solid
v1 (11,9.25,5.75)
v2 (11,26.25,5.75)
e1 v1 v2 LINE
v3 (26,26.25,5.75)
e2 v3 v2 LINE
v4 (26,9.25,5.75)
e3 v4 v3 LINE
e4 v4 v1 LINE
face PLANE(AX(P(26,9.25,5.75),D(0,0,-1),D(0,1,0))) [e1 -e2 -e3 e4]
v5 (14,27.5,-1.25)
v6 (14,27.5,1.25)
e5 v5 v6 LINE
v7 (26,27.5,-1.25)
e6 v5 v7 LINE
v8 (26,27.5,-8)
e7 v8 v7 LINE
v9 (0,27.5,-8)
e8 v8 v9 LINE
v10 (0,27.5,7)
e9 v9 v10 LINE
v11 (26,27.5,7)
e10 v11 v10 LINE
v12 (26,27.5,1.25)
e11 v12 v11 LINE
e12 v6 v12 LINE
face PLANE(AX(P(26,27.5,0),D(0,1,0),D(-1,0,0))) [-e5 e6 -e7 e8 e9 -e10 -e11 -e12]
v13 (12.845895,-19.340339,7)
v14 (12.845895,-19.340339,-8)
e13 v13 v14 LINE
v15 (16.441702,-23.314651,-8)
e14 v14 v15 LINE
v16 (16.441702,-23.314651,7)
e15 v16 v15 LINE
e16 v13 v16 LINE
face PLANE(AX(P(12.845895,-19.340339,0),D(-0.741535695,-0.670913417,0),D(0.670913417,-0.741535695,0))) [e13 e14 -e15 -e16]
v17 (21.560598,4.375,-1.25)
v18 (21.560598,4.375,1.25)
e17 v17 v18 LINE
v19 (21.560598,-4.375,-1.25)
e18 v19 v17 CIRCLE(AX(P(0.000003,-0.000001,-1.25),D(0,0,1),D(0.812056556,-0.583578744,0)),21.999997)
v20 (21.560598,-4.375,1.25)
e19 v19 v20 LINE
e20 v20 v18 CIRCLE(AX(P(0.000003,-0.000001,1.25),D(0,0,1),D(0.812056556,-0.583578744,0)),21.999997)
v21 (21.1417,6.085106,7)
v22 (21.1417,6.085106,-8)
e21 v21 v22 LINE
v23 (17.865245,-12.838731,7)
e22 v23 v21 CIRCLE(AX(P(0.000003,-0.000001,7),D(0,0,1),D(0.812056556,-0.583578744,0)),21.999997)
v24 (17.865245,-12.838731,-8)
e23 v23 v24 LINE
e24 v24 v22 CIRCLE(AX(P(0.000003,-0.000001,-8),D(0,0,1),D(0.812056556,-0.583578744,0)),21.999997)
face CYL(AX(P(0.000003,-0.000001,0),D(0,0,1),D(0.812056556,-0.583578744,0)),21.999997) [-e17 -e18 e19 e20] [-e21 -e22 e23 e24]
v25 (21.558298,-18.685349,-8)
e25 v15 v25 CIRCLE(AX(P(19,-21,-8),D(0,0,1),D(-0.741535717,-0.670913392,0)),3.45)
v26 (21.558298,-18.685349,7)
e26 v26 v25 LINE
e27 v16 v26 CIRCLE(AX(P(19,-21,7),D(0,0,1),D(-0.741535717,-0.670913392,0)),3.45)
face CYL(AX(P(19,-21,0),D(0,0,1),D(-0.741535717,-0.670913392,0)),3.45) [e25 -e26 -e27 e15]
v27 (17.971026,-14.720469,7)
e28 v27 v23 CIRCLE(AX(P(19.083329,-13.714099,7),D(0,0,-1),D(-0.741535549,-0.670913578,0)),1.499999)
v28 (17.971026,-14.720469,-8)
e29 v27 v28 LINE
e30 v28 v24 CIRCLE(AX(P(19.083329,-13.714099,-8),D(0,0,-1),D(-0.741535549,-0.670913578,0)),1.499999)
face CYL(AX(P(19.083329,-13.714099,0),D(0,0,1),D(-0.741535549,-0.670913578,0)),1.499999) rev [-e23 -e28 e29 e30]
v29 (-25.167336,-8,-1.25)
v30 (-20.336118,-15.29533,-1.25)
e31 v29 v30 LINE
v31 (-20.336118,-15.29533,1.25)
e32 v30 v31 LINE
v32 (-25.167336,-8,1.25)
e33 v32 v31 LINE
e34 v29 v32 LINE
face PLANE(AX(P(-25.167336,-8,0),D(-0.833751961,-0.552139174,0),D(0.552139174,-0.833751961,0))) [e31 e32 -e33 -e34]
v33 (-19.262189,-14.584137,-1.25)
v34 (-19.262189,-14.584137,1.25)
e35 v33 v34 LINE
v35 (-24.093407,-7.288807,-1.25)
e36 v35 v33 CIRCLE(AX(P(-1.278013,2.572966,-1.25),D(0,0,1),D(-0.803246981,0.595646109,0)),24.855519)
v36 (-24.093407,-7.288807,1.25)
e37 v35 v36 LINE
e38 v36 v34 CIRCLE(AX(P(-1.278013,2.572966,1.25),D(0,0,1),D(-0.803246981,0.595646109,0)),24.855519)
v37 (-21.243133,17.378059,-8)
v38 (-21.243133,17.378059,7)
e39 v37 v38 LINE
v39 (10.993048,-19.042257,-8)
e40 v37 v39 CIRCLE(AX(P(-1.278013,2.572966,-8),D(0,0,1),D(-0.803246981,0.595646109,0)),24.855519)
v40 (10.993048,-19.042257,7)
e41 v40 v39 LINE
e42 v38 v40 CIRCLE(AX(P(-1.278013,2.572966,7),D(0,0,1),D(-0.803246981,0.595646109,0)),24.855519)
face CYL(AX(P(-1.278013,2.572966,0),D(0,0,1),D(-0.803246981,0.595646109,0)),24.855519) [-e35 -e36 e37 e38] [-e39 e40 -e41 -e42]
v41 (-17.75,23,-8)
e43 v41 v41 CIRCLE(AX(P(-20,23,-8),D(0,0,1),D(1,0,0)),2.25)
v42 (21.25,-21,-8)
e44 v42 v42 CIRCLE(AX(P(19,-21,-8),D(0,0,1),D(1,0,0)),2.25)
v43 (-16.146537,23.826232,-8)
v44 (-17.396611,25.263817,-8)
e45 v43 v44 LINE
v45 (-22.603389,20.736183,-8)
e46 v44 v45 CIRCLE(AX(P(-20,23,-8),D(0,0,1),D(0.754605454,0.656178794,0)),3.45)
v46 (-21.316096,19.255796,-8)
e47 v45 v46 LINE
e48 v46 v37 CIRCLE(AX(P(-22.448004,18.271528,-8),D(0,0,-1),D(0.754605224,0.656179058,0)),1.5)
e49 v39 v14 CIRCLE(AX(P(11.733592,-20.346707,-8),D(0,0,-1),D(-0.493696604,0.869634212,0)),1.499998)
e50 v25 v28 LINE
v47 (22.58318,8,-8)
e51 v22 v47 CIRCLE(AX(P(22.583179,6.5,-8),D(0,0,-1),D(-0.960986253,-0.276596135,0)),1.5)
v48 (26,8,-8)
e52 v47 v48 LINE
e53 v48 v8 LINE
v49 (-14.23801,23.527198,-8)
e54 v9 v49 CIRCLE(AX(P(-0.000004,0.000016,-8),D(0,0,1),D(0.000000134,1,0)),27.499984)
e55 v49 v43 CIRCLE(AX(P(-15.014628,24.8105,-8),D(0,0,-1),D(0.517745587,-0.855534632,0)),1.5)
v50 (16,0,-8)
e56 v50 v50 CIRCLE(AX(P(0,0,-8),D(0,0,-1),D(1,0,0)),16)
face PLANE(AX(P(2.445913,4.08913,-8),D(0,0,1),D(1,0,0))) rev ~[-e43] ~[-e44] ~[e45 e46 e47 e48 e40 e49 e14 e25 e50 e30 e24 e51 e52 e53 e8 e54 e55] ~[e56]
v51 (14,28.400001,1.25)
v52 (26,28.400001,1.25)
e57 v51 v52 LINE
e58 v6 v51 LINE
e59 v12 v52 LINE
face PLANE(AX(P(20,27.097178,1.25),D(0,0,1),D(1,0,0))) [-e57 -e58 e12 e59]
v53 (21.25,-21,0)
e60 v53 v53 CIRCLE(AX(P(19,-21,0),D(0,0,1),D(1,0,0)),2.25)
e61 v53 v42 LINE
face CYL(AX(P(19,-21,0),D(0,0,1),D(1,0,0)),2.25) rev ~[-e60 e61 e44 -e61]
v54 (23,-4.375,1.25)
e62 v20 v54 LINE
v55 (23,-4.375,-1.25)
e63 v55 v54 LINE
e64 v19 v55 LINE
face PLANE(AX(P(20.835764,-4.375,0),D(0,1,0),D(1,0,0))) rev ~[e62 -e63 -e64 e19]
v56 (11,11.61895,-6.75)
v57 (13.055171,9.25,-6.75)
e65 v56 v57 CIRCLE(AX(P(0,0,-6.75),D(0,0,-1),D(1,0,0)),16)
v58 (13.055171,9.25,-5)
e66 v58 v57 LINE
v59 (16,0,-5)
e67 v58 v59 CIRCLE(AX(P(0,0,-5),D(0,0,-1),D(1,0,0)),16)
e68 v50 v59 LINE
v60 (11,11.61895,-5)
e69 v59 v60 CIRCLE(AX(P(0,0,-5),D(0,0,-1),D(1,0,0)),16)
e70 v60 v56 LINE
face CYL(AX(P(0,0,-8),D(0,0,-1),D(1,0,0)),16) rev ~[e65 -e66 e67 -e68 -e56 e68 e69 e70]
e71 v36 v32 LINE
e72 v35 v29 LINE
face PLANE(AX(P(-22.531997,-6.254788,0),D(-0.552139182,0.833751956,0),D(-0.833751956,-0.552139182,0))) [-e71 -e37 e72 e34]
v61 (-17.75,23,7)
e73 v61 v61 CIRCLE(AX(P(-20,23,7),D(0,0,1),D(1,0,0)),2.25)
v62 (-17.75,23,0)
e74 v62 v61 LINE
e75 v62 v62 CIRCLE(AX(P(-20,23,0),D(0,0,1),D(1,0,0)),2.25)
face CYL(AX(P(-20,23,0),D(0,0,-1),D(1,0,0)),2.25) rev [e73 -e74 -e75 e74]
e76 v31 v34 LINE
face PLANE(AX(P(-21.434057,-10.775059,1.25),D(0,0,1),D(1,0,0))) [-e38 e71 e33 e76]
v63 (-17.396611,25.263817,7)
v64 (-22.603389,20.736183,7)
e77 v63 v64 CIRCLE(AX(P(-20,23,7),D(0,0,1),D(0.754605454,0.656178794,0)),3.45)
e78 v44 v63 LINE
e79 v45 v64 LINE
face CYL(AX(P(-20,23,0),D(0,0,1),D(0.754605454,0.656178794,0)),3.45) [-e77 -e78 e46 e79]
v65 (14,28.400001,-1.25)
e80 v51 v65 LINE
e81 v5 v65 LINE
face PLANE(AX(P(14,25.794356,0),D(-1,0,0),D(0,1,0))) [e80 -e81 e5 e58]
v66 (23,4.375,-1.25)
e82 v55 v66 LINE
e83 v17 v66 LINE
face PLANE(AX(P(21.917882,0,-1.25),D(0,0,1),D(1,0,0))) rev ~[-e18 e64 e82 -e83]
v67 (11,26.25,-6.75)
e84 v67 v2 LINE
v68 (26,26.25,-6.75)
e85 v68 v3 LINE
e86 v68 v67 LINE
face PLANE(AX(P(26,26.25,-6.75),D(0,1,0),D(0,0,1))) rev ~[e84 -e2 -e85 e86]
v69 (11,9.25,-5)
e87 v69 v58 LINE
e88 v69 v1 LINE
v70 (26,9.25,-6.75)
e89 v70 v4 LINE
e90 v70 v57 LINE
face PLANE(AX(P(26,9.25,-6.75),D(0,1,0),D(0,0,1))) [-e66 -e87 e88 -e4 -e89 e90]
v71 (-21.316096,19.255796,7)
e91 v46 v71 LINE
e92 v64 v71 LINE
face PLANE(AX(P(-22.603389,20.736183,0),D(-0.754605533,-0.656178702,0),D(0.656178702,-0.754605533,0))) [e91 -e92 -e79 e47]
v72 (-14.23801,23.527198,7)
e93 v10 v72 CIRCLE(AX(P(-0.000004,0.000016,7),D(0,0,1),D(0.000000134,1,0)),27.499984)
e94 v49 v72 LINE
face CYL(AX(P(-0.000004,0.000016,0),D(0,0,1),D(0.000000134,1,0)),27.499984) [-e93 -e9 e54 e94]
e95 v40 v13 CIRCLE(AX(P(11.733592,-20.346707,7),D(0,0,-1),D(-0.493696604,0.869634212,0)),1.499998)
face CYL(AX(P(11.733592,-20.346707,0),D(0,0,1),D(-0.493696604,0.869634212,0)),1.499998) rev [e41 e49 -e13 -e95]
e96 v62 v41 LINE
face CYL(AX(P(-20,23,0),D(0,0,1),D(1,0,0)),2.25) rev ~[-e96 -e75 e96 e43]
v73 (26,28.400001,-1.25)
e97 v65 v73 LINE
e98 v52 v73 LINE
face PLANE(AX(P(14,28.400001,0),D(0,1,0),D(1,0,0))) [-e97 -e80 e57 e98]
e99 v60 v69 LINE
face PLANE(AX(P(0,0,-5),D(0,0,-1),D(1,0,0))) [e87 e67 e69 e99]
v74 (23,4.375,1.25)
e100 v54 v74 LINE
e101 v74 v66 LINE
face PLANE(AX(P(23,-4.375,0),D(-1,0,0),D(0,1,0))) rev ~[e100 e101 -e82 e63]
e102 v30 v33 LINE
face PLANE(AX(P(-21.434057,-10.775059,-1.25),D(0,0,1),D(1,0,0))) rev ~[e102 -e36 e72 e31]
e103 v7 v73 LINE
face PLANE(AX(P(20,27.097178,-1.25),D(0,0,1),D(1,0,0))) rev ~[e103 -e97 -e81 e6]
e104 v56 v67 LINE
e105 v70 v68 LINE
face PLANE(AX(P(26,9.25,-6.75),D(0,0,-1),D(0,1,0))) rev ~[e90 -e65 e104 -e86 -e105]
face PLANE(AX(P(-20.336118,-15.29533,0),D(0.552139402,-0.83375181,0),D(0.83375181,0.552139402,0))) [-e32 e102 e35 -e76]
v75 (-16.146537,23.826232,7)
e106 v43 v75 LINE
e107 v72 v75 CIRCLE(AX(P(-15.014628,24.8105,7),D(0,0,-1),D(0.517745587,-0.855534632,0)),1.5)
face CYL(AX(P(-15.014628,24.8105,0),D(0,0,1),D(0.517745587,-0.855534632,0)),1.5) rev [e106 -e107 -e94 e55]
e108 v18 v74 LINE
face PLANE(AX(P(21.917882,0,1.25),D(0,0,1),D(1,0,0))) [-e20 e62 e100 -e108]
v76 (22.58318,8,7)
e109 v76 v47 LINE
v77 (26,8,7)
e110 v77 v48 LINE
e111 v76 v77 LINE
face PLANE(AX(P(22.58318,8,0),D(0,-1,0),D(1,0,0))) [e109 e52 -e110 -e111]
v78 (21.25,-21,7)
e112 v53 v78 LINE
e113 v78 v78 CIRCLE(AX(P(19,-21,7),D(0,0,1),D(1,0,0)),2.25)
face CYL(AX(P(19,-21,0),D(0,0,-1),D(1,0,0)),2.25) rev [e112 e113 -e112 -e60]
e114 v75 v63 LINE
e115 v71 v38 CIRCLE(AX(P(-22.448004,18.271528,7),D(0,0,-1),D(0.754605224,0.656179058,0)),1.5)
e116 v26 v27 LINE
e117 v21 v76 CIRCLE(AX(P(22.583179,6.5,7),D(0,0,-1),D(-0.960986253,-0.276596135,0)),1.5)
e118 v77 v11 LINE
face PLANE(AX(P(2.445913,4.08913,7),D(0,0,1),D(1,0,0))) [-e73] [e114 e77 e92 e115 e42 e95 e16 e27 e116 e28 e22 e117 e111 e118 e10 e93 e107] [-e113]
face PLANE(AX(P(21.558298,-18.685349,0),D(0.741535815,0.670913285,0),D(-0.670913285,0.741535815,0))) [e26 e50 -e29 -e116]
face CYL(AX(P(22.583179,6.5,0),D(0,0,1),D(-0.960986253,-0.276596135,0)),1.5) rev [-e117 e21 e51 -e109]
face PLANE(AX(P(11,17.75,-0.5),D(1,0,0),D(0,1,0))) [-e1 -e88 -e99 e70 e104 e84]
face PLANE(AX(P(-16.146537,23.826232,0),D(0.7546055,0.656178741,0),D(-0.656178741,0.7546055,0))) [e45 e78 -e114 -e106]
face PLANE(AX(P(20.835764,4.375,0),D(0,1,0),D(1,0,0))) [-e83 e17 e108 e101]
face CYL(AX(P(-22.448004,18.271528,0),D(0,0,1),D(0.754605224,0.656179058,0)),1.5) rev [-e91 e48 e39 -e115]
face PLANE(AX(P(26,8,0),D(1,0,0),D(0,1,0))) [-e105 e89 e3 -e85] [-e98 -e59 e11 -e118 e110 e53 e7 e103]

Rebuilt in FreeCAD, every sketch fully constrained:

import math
import FreeCAD as App
import Part
import Sketcher

V = App.Vector


def add_polygon(sketch, points):
    """Adds a closed chain of lines whose ends are joined by coincident constraints."""
    first, n = sketch.GeometryCount, len(points)
    for a, b in zip(points, points[1:] + points[:1]):
        sketch.addGeometry(Part.LineSegment(App.Vector(*a, 0), App.Vector(*b, 0)), False)
    for i in range(n):
        sketch.addConstraint(Sketcher.Constraint("Coincident", first + i, 2, first + (i + 1) % n, 1))

doc = App.newDocument("Part")
params = doc.addObject("Spreadsheet::Sheet", "Params")
for row, (alias, value) in enumerate([
    ("sketch1_diameter", "4.5 mm"),
    ("sketch1_radius", "1.5 mm"),
    ("sketch1_width", "26 mm"),
    ("sketch1_radius2", "3.45 mm"),
    ("sketch1_height", "19.5 mm"),
    ("pad1_length", "7 mm"),
    ("pad1_length2", "8 mm"),
    ("sketch2_diameter", "32 mm"),
    ("pocket1_length", "3 mm"),
    ("sketch3_width", "12 mm"),
    ("sketch3_height", "8.75 mm"),
    ("sketch3_length", "8.75 mm"),
    ("pad2_length", "2.5 mm"),
    ("sketch4_width", "17 mm"),
    ("sketch4_height", "12.5 mm"),
    ("pocket2_length", "15 mm"),
], start=1):
    params.set(f"A{row}", alias)
    params.set(f"B{row}", "=" + value)
    params.setAlias(f"B{row}", alias)

body = doc.addObject("PartDesign::Body", "Body")

# Sketch on XY plane
sketch1 = body.newObject("Sketcher::SketchObject", "Sketch")
sketch1.AttachmentSupport = (doc.getObject("XY_Plane"), [""])
sketch1.MapMode = "FlatFace"
sketch1.addGeometry(Part.LineSegment(V(26, 8, 0), V(26, 27.5, 0)), False)
sketch1.addGeometry(Part.LineSegment(V(26, 27.5, 0), V(0, 27.5, 0)), False)
sketch1.addGeometry(Part.ArcOfCircle(Part.Circle(V(0, 0, 0), V(0, 0, 1), 27.5), math.radians(90), math.radians(121)), False)
sketch1.addGeometry(Part.ArcOfCircle(Part.Circle(V(-15, 24.8, 0), V(0, 0, 1), 1.5), math.radians(-139), math.radians(-59)), False)
sketch1.addGeometry(Part.LineSegment(V(-16.1, 23.8, 0), V(-17.4, 25.3, 0)), False)
sketch1.addGeometry(Part.ArcOfCircle(Part.Circle(V(-20, 23, 0), V(0, 0, 1), 3.5), math.radians(41), math.radians(221)), False)
sketch1.addGeometry(Part.LineSegment(V(-22.6, 20.7, 0), V(-21.3, 19.3, 0)), False)
sketch1.addGeometry(Part.ArcOfCircle(Part.Circle(V(-22.4, 18.3, 0), V(0, 0, 1), 1.5), math.radians(-37), math.radians(41)), False)
sketch1.addGeometry(Part.ArcOfCircle(Part.Circle(V(-1.3, 2.6, 0), V(0, 0, 1), 24.9), math.radians(143), math.radians(300)), False)
sketch1.addGeometry(Part.ArcOfCircle(Part.Circle(V(11.7, -20.3, 0), V(0, 0, 1), 1.5), math.radians(42), math.radians(120)), False)
sketch1.addGeometry(Part.LineSegment(V(12.8, -19.3, 0), V(16.4, -23.3, 0)), False)
sketch1.addGeometry(Part.ArcOfCircle(Part.Circle(V(19, -21, 0), V(0, 0, 1), 3.4), math.radians(-138), math.radians(42)), False)
sketch1.addGeometry(Part.LineSegment(V(21.6, -18.7, 0), V(18, -14.7, 0)), False)
sketch1.addGeometry(Part.ArcOfCircle(Part.Circle(V(19.1, -13.7, 0), V(0, 0, 1), 1.5), math.radians(144), math.radians(222)), False)
sketch1.addGeometry(Part.ArcOfCircle(Part.Circle(V(0, 0, 0), V(0, 0, 1), 22), math.radians(-36), math.radians(16)), False)
sketch1.addGeometry(Part.ArcOfCircle(Part.Circle(V(22.6, 6.5, 0), V(0, 0, 1), 1.5), math.radians(90), math.radians(196)), False)
sketch1.addGeometry(Part.LineSegment(V(22.6, 8, 0), V(26, 8, 0)), False)
sketch1.addGeometry(Part.Circle(V(19, -21, 0), V(0, 0, 1), 2.2), False)
sketch1.addGeometry(Part.Circle(V(-20, 23, 0), V(0, 0, 1), 2.2), False)
sketch1.addConstraint(Sketcher.Constraint("Coincident", 0, 2, 1, 1))
sketch1.addConstraint(Sketcher.Constraint("Tangent", 1, 2, 2, 1))
sketch1.addConstraint(Sketcher.Constraint("Tangent", 2, 2, 3, 2))
sketch1.addConstraint(Sketcher.Constraint("Tangent", 3, 1, 4, 1))
sketch1.addConstraint(Sketcher.Constraint("Tangent", 4, 2, 5, 1))
sketch1.addConstraint(Sketcher.Constraint("Tangent", 5, 2, 6, 1))
sketch1.addConstraint(Sketcher.Constraint("Tangent", 6, 2, 7, 2))
sketch1.addConstraint(Sketcher.Constraint("Tangent", 7, 1, 8, 1))
sketch1.addConstraint(Sketcher.Constraint("Tangent", 8, 2, 9, 2))
sketch1.addConstraint(Sketcher.Constraint("Tangent", 9, 1, 10, 1))
sketch1.addConstraint(Sketcher.Constraint("Tangent", 10, 2, 11, 1))
sketch1.addConstraint(Sketcher.Constraint("Tangent", 11, 2, 12, 1))
sketch1.addConstraint(Sketcher.Constraint("Tangent", 12, 2, 13, 2))
sketch1.addConstraint(Sketcher.Constraint("Tangent", 13, 1, 14, 1))
sketch1.addConstraint(Sketcher.Constraint("Tangent", 14, 2, 15, 2))
sketch1.addConstraint(Sketcher.Constraint("Tangent", 15, 1, 16, 1))
sketch1.addConstraint(Sketcher.Constraint("Coincident", 16, 2, 0, 1))
sketch1.addConstraint(Sketcher.Constraint("Vertical", 0))
sketch1.addConstraint(Sketcher.Constraint("Horizontal", 1))
sketch1.addConstraint(Sketcher.Constraint("Horizontal", 16))
sketch1.addConstraint(Sketcher.Constraint("Coincident", 14, 3, -1, 1))
sketch1.addConstraint(Sketcher.Constraint("Coincident", 17, 3, 11, 3))
sketch1.addConstraint(Sketcher.Constraint("Coincident", 18, 3, 5, 3))
sketch1.addConstraint(Sketcher.Constraint("Equal", 3, 7))
sketch1.addConstraint(Sketcher.Constraint("Equal", 7, 9))
sketch1.addConstraint(Sketcher.Constraint("Equal", 5, 11))
sketch1.addConstraint(Sketcher.Constraint("Equal", 9, 13))
sketch1.addConstraint(Sketcher.Constraint("Equal", 13, 15))
sketch1.addConstraint(Sketcher.Constraint("Equal", 17, 18))
sketch1.addConstraint(Sketcher.Constraint("PointOnObject", 1, 2, -2))
sketch1.addConstraint(Sketcher.Constraint("Parallel", 4, 6))
sketch1.addConstraint(Sketcher.Constraint("Parallel", 10, 12))
sketch1.addConstraint(Sketcher.Constraint("Diameter", 17, 4.5))
sketch1.addConstraint(Sketcher.Constraint("Radius", 3, 1.5))
sketch1.addConstraint(Sketcher.Constraint("DistanceX", 1, 2, 1, 1, 26.0))
sketch1.addConstraint(Sketcher.Constraint("Radius", 5, 3.45))
sketch1.addConstraint(Sketcher.Constraint("DistanceY", 0, 1, 0, 2, 19.5))
sketch1.addConstraint(Sketcher.Constraint("DistanceX", 5, 3, -1, 1, 20.0))
sketch1.addConstraint(Sketcher.Constraint("DistanceY", -1, 1, 5, 3, 23.0))
sketch1.addConstraint(Sketcher.Constraint("DistanceX", -1, 1, 11, 3, 19.0))
sketch1.addConstraint(Sketcher.Constraint("DistanceY", 11, 3, -1, 1, 21.0))
sketch1.addConstraint(Sketcher.Constraint("DistanceY", -1, 1, 15, 1, 8.0))
sketch1.addConstraint(Sketcher.Constraint("Radius", 8, 24.855519))
sketch1.addConstraint(Sketcher.Constraint("Radius", 2, 27.499984))
sketch1.addConstraint(Sketcher.Constraint("Radius", 14, 21.999997))
sketch1.addConstraint(Sketcher.Constraint("DistanceX", 7, 3, 2, 3, 22.448))
sketch1.addConstraint(Sketcher.Constraint("DistanceY", -1, 1, 3, 3, 24.8105))
sketch1.addConstraint(Sketcher.Constraint("DistanceY", 13, 3, -1, 1, 13.714099))
sketch1.addConstraint(Sketcher.Constraint("Distance", 10, 5.359569))
sketch1.setExpression("Constraints[32]", "Params.sketch1_diameter")
sketch1.setExpression("Constraints[33]", "Params.sketch1_radius")
sketch1.setExpression("Constraints[34]", "Params.sketch1_width")
sketch1.setExpression("Constraints[35]", "Params.sketch1_radius2")
sketch1.setExpression("Constraints[36]", "Params.sketch1_height")
pad1 = body.newObject("PartDesign::Pad", "Pad")
pad1.Profile = sketch1
pad1.Type = "TwoLengths"
pad1.setExpression("Length", "Params.pad1_length")
pad1.setExpression("Length2", "Params.pad1_length2")

# Sketch on XY plane
sketch2 = body.newObject("Sketcher::SketchObject", "Sketch001")
sketch2.AttachmentSupport = (doc.getObject("XY_Plane"), [""])
sketch2.MapMode = "FlatFace"
sketch2.AttachmentOffset = App.Placement(V(0, 0, -8), App.Rotation())
sketch2.addGeometry(Part.Circle(V(0, 0, 0), V(0, 0, 1), 16), False)
sketch2.addConstraint(Sketcher.Constraint("Coincident", 0, 3, -1, 1))
sketch2.addConstraint(Sketcher.Constraint("Diameter", 0, 32.0))
sketch2.setExpression("Constraints[1]", "Params.sketch2_diameter")
pocket1 = body.newObject("PartDesign::Pocket", "Pocket")
pocket1.Profile = sketch2
pocket1.setExpression("Length", "Params.pocket1_length")
pocket1.Reversed = True

# Sketch on XY plane
sketch3 = body.newObject("Sketcher::SketchObject", "Sketch002")
sketch3.AttachmentSupport = (doc.getObject("XY_Plane"), [""])
sketch3.MapMode = "FlatFace"
add_polygon(sketch3, [(14, 28.4), (14, 25.8), (26, 25.8), (26, 28.4)])  # lines 0-3
add_polygon(sketch3, [(20.8, 4.4), (20.8, -4.4), (23, -4.4), (23, 4.4)])  # lines 4-7
add_polygon(sketch3, [(-22.5, -6.3), (-25.2, -8), (-20.3, -15.3), (-17.7, -13.6)])  # lines 8-11
sketch3.addConstraint(Sketcher.Constraint("Vertical", 0))
sketch3.addConstraint(Sketcher.Constraint("Horizontal", 1))
sketch3.addConstraint(Sketcher.Constraint("Vertical", 2))
sketch3.addConstraint(Sketcher.Constraint("Horizontal", 3))
sketch3.addConstraint(Sketcher.Constraint("Vertical", 4))
sketch3.addConstraint(Sketcher.Constraint("Horizontal", 5))
sketch3.addConstraint(Sketcher.Constraint("Vertical", 6))
sketch3.addConstraint(Sketcher.Constraint("Horizontal", 7))
sketch3.addConstraint(Sketcher.Constraint("Perpendicular", 8, 9))
sketch3.addConstraint(Sketcher.Constraint("Perpendicular", 9, 10))
sketch3.addConstraint(Sketcher.Constraint("Perpendicular", 10, 11))
sketch3.addConstraint(Sketcher.Constraint("DistanceX", 1, 1, 1, 2, 12.0))
sketch3.addConstraint(Sketcher.Constraint("DistanceX", -1, 1, 0, 2, 14.0))
sketch3.addConstraint(Sketcher.Constraint("DistanceX", -1, 1, 5, 2, 23.0))
sketch3.addConstraint(Sketcher.Constraint("DistanceY", 8, 2, -1, 1, 8.0))
sketch3.addConstraint(Sketcher.Constraint("DistanceY", 4, 2, 4, 1, 8.75))
sketch3.addConstraint(Sketcher.Constraint("DistanceY", -1, 1, 2, 2, 28.400001))
sketch3.addConstraint(Sketcher.Constraint("Distance", 9, 8.75))
sketch3.addConstraint(Sketcher.Constraint("DistanceY", 4, 2, -1, 1, 4.375))
sketch3.addConstraint(Sketcher.Constraint("DistanceX", 8, 2, 4, 2, 46.003101))
sketch3.addConstraint(Sketcher.Constraint("Distance", 8, 3.160819))
sketch3.addConstraint(Sketcher.Constraint("DistanceX", 5, 1, 5, 2, 2.164235))
sketch3.addConstraint(Sketcher.Constraint("DistanceY", 0, 2, 0, 1, 2.605645))
sketch3.addConstraint(Sketcher.Constraint("DistanceY", 9, 2, -1, 1, 15.29533))
sketch3.setExpression("Constraints[23]", "Params.sketch3_width")
sketch3.setExpression("Constraints[27]", "Params.sketch3_height")
sketch3.setExpression("Constraints[29]", "Params.sketch3_length")
pad2 = body.newObject("PartDesign::Pad", "Pad001")
pad2.Profile = sketch3
pad2.setExpression("Length", "Params.pad2_length")
pad2.Midplane = True

# Sketch on YZ plane
sketch4 = body.newObject("Sketcher::SketchObject", "Sketch003")
sketch4.AttachmentSupport = (doc.getObject("YZ_Plane"), [""])
sketch4.MapMode = "FlatFace"
sketch4.AttachmentOffset = App.Placement(V(0, 0, 26), App.Rotation())
add_polygon(sketch4, [(9, 6), (9, -7), (26, -7), (26, 6)])  # lines 0-3
sketch4.addConstraint(Sketcher.Constraint("Vertical", 0))
sketch4.addConstraint(Sketcher.Constraint("Horizontal", 1))
sketch4.addConstraint(Sketcher.Constraint("Vertical", 2))
sketch4.addConstraint(Sketcher.Constraint("Horizontal", 3))
sketch4.addConstraint(Sketcher.Constraint("DistanceX", 1, 1, 1, 2, 17.0))
sketch4.addConstraint(Sketcher.Constraint("DistanceY", 0, 2, 0, 1, 12.5))
sketch4.addConstraint(Sketcher.Constraint("DistanceX", -1, 1, 0, 2, 9.25))
sketch4.addConstraint(Sketcher.Constraint("DistanceY", 0, 2, -1, 1, 6.75))
sketch4.setExpression("Constraints[8]", "Params.sketch4_width")
sketch4.setExpression("Constraints[9]", "Params.sketch4_height")
pocket2 = body.newObject("PartDesign::Pocket", "Pocket001")
pocket2.Profile = sketch4
pocket2.setExpression("Length", "Params.pocket2_length")

doc.recompute()
